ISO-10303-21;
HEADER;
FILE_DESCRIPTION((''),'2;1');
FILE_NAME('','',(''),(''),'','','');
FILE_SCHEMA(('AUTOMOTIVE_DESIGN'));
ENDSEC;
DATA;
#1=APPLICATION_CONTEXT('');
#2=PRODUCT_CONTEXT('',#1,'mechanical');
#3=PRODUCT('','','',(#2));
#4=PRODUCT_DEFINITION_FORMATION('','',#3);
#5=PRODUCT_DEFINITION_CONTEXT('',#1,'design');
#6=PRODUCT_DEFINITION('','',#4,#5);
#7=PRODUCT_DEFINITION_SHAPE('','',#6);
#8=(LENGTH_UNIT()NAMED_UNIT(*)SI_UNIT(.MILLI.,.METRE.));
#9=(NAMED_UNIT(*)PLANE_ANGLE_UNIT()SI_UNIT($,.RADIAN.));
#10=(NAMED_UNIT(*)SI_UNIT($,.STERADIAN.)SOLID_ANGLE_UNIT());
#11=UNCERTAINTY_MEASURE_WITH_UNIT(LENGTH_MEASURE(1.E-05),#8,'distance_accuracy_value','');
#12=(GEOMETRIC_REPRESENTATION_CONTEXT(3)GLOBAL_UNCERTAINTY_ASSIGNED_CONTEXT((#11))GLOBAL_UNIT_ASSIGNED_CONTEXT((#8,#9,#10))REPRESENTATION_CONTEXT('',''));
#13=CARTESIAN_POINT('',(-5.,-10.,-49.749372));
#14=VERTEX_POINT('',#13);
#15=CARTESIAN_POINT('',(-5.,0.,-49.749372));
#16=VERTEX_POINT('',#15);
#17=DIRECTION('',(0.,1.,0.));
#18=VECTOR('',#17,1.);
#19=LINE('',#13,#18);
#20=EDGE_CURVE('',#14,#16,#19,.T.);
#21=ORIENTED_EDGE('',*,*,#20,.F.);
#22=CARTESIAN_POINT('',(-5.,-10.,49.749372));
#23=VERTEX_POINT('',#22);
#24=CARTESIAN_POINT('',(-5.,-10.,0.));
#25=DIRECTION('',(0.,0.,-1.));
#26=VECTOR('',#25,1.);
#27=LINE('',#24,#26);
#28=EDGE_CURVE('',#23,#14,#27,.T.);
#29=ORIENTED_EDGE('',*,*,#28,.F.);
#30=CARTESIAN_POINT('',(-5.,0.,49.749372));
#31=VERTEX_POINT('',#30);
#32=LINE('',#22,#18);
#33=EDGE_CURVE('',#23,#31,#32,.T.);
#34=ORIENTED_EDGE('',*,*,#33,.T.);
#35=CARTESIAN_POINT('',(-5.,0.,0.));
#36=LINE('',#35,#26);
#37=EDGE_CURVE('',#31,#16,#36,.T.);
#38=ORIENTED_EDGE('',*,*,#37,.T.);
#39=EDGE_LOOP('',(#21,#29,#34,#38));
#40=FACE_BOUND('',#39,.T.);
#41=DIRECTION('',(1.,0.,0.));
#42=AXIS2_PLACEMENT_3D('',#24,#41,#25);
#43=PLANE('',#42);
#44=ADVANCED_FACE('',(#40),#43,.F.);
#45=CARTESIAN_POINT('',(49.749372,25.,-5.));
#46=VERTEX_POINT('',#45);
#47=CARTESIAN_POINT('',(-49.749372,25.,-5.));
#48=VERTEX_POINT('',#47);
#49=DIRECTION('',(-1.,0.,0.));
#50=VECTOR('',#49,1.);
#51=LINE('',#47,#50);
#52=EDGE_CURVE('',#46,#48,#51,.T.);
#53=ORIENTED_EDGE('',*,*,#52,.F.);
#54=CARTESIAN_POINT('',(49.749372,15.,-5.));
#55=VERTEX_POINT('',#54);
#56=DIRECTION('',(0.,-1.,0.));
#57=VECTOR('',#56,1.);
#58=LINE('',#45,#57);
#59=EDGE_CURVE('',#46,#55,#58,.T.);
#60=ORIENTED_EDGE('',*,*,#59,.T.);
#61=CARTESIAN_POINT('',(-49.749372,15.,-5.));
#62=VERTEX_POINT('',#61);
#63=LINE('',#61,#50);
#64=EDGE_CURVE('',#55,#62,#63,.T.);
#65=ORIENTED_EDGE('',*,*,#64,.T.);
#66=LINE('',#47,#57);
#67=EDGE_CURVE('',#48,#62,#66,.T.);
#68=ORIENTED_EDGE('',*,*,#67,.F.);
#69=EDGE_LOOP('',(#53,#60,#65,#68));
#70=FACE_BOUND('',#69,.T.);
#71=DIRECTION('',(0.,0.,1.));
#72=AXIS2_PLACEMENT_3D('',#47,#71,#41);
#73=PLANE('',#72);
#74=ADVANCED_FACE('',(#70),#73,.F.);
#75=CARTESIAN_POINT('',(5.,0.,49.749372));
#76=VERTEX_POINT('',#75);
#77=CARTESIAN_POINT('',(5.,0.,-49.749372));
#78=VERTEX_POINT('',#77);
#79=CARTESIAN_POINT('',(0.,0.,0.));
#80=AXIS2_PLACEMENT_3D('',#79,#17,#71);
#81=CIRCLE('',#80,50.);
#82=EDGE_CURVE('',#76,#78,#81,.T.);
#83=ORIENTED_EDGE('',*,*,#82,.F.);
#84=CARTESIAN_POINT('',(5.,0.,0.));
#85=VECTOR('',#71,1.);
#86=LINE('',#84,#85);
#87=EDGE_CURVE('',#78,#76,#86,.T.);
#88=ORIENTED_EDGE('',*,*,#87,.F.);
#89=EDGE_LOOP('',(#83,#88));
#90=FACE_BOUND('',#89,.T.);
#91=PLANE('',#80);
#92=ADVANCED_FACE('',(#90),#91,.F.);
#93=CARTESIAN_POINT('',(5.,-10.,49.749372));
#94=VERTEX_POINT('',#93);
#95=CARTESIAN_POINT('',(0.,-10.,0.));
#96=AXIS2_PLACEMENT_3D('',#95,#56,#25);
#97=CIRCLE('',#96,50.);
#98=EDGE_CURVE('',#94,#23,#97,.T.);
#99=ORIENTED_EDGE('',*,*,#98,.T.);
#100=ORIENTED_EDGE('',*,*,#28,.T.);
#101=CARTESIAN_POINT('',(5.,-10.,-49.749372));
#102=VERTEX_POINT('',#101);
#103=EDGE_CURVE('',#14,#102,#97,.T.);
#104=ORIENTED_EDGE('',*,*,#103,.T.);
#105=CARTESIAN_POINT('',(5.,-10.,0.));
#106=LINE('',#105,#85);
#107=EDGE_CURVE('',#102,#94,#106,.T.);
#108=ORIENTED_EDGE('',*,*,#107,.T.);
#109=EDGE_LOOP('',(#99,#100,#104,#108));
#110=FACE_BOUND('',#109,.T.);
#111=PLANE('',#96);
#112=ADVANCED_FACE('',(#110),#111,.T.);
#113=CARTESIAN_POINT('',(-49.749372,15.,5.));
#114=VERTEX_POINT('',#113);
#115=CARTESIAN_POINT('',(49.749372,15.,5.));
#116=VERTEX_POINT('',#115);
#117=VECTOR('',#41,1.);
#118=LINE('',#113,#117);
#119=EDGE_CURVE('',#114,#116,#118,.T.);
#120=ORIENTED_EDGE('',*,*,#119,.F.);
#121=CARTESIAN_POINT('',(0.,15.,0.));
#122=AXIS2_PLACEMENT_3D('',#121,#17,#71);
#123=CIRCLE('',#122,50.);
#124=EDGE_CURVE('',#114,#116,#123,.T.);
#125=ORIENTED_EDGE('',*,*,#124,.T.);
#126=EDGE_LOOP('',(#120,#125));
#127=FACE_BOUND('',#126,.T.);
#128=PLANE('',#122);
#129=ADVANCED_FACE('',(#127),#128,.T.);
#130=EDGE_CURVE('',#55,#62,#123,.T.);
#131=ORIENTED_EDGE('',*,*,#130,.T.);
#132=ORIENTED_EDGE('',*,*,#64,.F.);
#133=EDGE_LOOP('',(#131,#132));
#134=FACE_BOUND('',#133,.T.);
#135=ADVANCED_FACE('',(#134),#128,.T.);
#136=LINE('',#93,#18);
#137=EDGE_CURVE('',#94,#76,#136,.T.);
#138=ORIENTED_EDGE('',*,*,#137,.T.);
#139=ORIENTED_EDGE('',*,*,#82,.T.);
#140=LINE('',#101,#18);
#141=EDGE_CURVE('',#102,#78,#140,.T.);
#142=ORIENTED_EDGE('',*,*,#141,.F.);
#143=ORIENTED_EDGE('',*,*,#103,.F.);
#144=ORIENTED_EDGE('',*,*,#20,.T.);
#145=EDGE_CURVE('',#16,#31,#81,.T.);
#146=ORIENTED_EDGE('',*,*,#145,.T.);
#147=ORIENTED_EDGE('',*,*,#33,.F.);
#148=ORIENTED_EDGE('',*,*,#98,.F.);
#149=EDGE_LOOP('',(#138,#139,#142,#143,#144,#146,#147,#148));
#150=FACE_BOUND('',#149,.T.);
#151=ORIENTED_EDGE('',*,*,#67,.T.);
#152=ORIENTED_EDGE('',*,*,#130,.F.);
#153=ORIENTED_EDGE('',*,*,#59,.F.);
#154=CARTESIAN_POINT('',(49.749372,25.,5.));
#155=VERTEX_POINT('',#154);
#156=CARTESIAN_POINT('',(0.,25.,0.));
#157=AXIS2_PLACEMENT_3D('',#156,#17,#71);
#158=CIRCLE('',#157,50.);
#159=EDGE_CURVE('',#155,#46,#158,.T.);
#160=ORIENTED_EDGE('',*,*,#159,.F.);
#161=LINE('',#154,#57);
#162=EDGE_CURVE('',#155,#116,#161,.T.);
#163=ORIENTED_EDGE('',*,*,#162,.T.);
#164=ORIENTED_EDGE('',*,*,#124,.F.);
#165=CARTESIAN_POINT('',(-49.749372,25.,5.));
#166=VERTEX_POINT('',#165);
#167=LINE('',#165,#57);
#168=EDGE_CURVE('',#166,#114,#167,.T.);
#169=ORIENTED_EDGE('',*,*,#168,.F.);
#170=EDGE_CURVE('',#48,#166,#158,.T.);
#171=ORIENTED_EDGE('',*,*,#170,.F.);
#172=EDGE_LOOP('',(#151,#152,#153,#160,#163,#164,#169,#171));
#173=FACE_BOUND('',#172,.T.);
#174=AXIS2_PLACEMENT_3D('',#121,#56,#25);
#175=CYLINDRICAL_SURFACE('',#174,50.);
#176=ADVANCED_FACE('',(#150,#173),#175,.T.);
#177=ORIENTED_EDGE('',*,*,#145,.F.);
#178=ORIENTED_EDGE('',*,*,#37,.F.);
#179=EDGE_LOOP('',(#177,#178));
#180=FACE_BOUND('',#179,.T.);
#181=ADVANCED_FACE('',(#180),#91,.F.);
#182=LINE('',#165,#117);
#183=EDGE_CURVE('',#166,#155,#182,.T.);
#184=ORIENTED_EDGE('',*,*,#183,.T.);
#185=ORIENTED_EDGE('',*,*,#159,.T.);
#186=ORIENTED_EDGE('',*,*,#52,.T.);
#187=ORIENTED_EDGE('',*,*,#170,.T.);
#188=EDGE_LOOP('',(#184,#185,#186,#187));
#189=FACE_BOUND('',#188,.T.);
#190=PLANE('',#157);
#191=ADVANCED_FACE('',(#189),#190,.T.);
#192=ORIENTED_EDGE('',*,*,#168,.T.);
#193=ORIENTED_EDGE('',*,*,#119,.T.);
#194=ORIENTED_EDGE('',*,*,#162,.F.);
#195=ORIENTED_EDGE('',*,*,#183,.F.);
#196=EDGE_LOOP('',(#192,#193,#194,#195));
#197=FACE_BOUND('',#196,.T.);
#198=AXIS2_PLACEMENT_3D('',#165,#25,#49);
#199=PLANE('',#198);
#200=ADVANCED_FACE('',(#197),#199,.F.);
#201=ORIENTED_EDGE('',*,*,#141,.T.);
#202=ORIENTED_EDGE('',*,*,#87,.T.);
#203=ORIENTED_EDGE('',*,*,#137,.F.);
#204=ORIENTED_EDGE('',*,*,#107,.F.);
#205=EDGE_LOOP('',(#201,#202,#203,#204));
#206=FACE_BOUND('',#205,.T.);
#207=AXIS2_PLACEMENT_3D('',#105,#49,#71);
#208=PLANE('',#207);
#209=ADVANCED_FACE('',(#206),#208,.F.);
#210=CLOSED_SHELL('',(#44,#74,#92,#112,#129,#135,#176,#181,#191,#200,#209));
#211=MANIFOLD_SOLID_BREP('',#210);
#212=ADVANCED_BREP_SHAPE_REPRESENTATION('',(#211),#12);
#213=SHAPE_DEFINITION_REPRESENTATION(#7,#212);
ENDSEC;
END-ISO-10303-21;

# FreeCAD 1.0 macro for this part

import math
import FreeCAD as App
import Part
import Sketcher

doc = App.newDocument("Part")
body = doc.addObject("PartDesign::Body", "Body")

# Sketch on XZ plane
sketch1 = doc.addObject("Sketcher::SketchObject", "Sketch")
body.addObject(sketch1)
sketch1.AttachmentSupport = (doc.XZ_Plane, [""])
sketch1.MapMode = "FlatFace"
sketch1.addGeometry(Part.Circle(App.Vector(0, 0, 0), App.Vector(0, 0, 1), 50), False)
sketch1.addConstraint(Sketcher.Constraint("Coincident", 0, 3, -1, 1))
sketch1.addConstraint(Sketcher.Constraint("Diameter", 0, 100.0))
pad1 = doc.addObject("PartDesign::Pad", "Pad")
body.addObject(pad1)
pad1.Profile = sketch1
pad1.Length = 15
pad1.Reversed = True

# Sketch on XZ plane
sketch2 = doc.addObject("Sketcher::SketchObject", "Sketch001")
body.addObject(sketch2)
sketch2.AttachmentSupport = (doc.XZ_Plane, [""])
sketch2.MapMode = "FlatFace"
sketch2.AttachmentOffset = App.Placement(App.Vector(0, 0, -15), App.Rotation())
sketch2.addGeometry(Part.LineSegment(App.Vector(50, -5, 0), App.Vector(-50, -5, 0)), False)
sketch2.addGeometry(Part.ArcOfCircle(Part.Circle(App.Vector(0, 0, 0), App.Vector(0, 0, 1), 50), math.radians(174.26), math.radians(185.74)), False)
sketch2.addGeometry(Part.LineSegment(App.Vector(-50, 5, 0), App.Vector(50, 5, 0)), False)
sketch2.addGeometry(Part.ArcOfCircle(Part.Circle(App.Vector(0, 0, 0), App.Vector(0, 0, 1), 50), math.radians(-5.74), math.radians(5.74)), False)
sketch2.addConstraint(Sketcher.Constraint("Coincident", 0, 2, 1, 2))
sketch2.addConstraint(Sketcher.Constraint("Coincident", 1, 1, 2, 1))
sketch2.addConstraint(Sketcher.Constraint("Coincident", 2, 2, 3, 2))
sketch2.addConstraint(Sketcher.Constraint("Coincident", 3, 1, 0, 1))
sketch2.addConstraint(Sketcher.Constraint("Horizontal", 0))
sketch2.addConstraint(Sketcher.Constraint("Horizontal", 2))
sketch2.addConstraint(Sketcher.Constraint("Coincident", 1, 3, -1, 1))
sketch2.addConstraint(Sketcher.Constraint("Coincident", 3, 3, -1, 1))
sketch2.addConstraint(Sketcher.Constraint("Equal", 1, 3))
sketch2.addConstraint(Sketcher.Constraint("Vertical", 0, 2, 1, 1))
sketch2.addConstraint(Sketcher.Constraint("Radius", 1, 50.0))
sketch2.addConstraint(Sketcher.Constraint("DistanceY", 0, 2, -1, 1, 5.0))
pad2 = doc.addObject("PartDesign::Pad", "Pad001")
body.addObject(pad2)
pad2.Profile = sketch2
pad2.Length = 10
pad2.Reversed = True

# Sketch on XZ plane
sketch3 = doc.addObject("Sketcher::SketchObject", "Sketch002")
body.addObject(sketch3)
sketch3.AttachmentSupport = (doc.XZ_Plane, [""])
sketch3.MapMode = "FlatFace"
sketch3.AttachmentOffset = App.Placement(App.Vector(0, 0, 10), App.Rotation())
sketch3.addGeometry(Part.ArcOfCircle(Part.Circle(App.Vector(0, 0, 0), App.Vector(0, 0, 1), 50), math.radians(-95.74), math.radians(-84.26)), False)
sketch3.addGeometry(Part.LineSegment(App.Vector(5, -50, 0), App.Vector(5, 50, 0)), False)
sketch3.addGeometry(Part.ArcOfCircle(Part.Circle(App.Vector(0, 0, 0), App.Vector(0, 0, 1), 50), math.radians(84.26), math.radians(95.74)), False)
sketch3.addGeometry(Part.LineSegment(App.Vector(-5, 50, 0), App.Vector(-5, -50, 0)), False)
sketch3.addConstraint(Sketcher.Constraint("Coincident", 0, 2, 1, 1))
sketch3.addConstraint(Sketcher.Constraint("Coincident", 1, 2, 2, 1))
sketch3.addConstraint(Sketcher.Constraint("Coincident", 2, 2, 3, 1))
sketch3.addConstraint(Sketcher.Constraint("Coincident", 3, 2, 0, 1))
sketch3.addConstraint(Sketcher.Constraint("Vertical", 1))
sketch3.addConstraint(Sketcher.Constraint("Vertical", 3))
sketch3.addConstraint(Sketcher.Constraint("Coincident", 0, 3, -1, 1))
sketch3.addConstraint(Sketcher.Constraint("Coincident", 2, 3, -1, 1))
sketch3.addConstraint(Sketcher.Constraint("Equal", 0, 2))
sketch3.addConstraint(Sketcher.Constraint("Horizontal", 1, 2, 2, 2))
sketch3.addConstraint(Sketcher.Constraint("Radius", 0, 50.0))
sketch3.addConstraint(Sketcher.Constraint("DistanceX", -1, 1, 0, 2, 5.0))
pad3 = doc.addObject("PartDesign::Pad", "Pad002")
body.addObject(pad3)
pad3.Profile = sketch3
pad3.Length = 10
pad3.Reversed = True

doc.recompute()
